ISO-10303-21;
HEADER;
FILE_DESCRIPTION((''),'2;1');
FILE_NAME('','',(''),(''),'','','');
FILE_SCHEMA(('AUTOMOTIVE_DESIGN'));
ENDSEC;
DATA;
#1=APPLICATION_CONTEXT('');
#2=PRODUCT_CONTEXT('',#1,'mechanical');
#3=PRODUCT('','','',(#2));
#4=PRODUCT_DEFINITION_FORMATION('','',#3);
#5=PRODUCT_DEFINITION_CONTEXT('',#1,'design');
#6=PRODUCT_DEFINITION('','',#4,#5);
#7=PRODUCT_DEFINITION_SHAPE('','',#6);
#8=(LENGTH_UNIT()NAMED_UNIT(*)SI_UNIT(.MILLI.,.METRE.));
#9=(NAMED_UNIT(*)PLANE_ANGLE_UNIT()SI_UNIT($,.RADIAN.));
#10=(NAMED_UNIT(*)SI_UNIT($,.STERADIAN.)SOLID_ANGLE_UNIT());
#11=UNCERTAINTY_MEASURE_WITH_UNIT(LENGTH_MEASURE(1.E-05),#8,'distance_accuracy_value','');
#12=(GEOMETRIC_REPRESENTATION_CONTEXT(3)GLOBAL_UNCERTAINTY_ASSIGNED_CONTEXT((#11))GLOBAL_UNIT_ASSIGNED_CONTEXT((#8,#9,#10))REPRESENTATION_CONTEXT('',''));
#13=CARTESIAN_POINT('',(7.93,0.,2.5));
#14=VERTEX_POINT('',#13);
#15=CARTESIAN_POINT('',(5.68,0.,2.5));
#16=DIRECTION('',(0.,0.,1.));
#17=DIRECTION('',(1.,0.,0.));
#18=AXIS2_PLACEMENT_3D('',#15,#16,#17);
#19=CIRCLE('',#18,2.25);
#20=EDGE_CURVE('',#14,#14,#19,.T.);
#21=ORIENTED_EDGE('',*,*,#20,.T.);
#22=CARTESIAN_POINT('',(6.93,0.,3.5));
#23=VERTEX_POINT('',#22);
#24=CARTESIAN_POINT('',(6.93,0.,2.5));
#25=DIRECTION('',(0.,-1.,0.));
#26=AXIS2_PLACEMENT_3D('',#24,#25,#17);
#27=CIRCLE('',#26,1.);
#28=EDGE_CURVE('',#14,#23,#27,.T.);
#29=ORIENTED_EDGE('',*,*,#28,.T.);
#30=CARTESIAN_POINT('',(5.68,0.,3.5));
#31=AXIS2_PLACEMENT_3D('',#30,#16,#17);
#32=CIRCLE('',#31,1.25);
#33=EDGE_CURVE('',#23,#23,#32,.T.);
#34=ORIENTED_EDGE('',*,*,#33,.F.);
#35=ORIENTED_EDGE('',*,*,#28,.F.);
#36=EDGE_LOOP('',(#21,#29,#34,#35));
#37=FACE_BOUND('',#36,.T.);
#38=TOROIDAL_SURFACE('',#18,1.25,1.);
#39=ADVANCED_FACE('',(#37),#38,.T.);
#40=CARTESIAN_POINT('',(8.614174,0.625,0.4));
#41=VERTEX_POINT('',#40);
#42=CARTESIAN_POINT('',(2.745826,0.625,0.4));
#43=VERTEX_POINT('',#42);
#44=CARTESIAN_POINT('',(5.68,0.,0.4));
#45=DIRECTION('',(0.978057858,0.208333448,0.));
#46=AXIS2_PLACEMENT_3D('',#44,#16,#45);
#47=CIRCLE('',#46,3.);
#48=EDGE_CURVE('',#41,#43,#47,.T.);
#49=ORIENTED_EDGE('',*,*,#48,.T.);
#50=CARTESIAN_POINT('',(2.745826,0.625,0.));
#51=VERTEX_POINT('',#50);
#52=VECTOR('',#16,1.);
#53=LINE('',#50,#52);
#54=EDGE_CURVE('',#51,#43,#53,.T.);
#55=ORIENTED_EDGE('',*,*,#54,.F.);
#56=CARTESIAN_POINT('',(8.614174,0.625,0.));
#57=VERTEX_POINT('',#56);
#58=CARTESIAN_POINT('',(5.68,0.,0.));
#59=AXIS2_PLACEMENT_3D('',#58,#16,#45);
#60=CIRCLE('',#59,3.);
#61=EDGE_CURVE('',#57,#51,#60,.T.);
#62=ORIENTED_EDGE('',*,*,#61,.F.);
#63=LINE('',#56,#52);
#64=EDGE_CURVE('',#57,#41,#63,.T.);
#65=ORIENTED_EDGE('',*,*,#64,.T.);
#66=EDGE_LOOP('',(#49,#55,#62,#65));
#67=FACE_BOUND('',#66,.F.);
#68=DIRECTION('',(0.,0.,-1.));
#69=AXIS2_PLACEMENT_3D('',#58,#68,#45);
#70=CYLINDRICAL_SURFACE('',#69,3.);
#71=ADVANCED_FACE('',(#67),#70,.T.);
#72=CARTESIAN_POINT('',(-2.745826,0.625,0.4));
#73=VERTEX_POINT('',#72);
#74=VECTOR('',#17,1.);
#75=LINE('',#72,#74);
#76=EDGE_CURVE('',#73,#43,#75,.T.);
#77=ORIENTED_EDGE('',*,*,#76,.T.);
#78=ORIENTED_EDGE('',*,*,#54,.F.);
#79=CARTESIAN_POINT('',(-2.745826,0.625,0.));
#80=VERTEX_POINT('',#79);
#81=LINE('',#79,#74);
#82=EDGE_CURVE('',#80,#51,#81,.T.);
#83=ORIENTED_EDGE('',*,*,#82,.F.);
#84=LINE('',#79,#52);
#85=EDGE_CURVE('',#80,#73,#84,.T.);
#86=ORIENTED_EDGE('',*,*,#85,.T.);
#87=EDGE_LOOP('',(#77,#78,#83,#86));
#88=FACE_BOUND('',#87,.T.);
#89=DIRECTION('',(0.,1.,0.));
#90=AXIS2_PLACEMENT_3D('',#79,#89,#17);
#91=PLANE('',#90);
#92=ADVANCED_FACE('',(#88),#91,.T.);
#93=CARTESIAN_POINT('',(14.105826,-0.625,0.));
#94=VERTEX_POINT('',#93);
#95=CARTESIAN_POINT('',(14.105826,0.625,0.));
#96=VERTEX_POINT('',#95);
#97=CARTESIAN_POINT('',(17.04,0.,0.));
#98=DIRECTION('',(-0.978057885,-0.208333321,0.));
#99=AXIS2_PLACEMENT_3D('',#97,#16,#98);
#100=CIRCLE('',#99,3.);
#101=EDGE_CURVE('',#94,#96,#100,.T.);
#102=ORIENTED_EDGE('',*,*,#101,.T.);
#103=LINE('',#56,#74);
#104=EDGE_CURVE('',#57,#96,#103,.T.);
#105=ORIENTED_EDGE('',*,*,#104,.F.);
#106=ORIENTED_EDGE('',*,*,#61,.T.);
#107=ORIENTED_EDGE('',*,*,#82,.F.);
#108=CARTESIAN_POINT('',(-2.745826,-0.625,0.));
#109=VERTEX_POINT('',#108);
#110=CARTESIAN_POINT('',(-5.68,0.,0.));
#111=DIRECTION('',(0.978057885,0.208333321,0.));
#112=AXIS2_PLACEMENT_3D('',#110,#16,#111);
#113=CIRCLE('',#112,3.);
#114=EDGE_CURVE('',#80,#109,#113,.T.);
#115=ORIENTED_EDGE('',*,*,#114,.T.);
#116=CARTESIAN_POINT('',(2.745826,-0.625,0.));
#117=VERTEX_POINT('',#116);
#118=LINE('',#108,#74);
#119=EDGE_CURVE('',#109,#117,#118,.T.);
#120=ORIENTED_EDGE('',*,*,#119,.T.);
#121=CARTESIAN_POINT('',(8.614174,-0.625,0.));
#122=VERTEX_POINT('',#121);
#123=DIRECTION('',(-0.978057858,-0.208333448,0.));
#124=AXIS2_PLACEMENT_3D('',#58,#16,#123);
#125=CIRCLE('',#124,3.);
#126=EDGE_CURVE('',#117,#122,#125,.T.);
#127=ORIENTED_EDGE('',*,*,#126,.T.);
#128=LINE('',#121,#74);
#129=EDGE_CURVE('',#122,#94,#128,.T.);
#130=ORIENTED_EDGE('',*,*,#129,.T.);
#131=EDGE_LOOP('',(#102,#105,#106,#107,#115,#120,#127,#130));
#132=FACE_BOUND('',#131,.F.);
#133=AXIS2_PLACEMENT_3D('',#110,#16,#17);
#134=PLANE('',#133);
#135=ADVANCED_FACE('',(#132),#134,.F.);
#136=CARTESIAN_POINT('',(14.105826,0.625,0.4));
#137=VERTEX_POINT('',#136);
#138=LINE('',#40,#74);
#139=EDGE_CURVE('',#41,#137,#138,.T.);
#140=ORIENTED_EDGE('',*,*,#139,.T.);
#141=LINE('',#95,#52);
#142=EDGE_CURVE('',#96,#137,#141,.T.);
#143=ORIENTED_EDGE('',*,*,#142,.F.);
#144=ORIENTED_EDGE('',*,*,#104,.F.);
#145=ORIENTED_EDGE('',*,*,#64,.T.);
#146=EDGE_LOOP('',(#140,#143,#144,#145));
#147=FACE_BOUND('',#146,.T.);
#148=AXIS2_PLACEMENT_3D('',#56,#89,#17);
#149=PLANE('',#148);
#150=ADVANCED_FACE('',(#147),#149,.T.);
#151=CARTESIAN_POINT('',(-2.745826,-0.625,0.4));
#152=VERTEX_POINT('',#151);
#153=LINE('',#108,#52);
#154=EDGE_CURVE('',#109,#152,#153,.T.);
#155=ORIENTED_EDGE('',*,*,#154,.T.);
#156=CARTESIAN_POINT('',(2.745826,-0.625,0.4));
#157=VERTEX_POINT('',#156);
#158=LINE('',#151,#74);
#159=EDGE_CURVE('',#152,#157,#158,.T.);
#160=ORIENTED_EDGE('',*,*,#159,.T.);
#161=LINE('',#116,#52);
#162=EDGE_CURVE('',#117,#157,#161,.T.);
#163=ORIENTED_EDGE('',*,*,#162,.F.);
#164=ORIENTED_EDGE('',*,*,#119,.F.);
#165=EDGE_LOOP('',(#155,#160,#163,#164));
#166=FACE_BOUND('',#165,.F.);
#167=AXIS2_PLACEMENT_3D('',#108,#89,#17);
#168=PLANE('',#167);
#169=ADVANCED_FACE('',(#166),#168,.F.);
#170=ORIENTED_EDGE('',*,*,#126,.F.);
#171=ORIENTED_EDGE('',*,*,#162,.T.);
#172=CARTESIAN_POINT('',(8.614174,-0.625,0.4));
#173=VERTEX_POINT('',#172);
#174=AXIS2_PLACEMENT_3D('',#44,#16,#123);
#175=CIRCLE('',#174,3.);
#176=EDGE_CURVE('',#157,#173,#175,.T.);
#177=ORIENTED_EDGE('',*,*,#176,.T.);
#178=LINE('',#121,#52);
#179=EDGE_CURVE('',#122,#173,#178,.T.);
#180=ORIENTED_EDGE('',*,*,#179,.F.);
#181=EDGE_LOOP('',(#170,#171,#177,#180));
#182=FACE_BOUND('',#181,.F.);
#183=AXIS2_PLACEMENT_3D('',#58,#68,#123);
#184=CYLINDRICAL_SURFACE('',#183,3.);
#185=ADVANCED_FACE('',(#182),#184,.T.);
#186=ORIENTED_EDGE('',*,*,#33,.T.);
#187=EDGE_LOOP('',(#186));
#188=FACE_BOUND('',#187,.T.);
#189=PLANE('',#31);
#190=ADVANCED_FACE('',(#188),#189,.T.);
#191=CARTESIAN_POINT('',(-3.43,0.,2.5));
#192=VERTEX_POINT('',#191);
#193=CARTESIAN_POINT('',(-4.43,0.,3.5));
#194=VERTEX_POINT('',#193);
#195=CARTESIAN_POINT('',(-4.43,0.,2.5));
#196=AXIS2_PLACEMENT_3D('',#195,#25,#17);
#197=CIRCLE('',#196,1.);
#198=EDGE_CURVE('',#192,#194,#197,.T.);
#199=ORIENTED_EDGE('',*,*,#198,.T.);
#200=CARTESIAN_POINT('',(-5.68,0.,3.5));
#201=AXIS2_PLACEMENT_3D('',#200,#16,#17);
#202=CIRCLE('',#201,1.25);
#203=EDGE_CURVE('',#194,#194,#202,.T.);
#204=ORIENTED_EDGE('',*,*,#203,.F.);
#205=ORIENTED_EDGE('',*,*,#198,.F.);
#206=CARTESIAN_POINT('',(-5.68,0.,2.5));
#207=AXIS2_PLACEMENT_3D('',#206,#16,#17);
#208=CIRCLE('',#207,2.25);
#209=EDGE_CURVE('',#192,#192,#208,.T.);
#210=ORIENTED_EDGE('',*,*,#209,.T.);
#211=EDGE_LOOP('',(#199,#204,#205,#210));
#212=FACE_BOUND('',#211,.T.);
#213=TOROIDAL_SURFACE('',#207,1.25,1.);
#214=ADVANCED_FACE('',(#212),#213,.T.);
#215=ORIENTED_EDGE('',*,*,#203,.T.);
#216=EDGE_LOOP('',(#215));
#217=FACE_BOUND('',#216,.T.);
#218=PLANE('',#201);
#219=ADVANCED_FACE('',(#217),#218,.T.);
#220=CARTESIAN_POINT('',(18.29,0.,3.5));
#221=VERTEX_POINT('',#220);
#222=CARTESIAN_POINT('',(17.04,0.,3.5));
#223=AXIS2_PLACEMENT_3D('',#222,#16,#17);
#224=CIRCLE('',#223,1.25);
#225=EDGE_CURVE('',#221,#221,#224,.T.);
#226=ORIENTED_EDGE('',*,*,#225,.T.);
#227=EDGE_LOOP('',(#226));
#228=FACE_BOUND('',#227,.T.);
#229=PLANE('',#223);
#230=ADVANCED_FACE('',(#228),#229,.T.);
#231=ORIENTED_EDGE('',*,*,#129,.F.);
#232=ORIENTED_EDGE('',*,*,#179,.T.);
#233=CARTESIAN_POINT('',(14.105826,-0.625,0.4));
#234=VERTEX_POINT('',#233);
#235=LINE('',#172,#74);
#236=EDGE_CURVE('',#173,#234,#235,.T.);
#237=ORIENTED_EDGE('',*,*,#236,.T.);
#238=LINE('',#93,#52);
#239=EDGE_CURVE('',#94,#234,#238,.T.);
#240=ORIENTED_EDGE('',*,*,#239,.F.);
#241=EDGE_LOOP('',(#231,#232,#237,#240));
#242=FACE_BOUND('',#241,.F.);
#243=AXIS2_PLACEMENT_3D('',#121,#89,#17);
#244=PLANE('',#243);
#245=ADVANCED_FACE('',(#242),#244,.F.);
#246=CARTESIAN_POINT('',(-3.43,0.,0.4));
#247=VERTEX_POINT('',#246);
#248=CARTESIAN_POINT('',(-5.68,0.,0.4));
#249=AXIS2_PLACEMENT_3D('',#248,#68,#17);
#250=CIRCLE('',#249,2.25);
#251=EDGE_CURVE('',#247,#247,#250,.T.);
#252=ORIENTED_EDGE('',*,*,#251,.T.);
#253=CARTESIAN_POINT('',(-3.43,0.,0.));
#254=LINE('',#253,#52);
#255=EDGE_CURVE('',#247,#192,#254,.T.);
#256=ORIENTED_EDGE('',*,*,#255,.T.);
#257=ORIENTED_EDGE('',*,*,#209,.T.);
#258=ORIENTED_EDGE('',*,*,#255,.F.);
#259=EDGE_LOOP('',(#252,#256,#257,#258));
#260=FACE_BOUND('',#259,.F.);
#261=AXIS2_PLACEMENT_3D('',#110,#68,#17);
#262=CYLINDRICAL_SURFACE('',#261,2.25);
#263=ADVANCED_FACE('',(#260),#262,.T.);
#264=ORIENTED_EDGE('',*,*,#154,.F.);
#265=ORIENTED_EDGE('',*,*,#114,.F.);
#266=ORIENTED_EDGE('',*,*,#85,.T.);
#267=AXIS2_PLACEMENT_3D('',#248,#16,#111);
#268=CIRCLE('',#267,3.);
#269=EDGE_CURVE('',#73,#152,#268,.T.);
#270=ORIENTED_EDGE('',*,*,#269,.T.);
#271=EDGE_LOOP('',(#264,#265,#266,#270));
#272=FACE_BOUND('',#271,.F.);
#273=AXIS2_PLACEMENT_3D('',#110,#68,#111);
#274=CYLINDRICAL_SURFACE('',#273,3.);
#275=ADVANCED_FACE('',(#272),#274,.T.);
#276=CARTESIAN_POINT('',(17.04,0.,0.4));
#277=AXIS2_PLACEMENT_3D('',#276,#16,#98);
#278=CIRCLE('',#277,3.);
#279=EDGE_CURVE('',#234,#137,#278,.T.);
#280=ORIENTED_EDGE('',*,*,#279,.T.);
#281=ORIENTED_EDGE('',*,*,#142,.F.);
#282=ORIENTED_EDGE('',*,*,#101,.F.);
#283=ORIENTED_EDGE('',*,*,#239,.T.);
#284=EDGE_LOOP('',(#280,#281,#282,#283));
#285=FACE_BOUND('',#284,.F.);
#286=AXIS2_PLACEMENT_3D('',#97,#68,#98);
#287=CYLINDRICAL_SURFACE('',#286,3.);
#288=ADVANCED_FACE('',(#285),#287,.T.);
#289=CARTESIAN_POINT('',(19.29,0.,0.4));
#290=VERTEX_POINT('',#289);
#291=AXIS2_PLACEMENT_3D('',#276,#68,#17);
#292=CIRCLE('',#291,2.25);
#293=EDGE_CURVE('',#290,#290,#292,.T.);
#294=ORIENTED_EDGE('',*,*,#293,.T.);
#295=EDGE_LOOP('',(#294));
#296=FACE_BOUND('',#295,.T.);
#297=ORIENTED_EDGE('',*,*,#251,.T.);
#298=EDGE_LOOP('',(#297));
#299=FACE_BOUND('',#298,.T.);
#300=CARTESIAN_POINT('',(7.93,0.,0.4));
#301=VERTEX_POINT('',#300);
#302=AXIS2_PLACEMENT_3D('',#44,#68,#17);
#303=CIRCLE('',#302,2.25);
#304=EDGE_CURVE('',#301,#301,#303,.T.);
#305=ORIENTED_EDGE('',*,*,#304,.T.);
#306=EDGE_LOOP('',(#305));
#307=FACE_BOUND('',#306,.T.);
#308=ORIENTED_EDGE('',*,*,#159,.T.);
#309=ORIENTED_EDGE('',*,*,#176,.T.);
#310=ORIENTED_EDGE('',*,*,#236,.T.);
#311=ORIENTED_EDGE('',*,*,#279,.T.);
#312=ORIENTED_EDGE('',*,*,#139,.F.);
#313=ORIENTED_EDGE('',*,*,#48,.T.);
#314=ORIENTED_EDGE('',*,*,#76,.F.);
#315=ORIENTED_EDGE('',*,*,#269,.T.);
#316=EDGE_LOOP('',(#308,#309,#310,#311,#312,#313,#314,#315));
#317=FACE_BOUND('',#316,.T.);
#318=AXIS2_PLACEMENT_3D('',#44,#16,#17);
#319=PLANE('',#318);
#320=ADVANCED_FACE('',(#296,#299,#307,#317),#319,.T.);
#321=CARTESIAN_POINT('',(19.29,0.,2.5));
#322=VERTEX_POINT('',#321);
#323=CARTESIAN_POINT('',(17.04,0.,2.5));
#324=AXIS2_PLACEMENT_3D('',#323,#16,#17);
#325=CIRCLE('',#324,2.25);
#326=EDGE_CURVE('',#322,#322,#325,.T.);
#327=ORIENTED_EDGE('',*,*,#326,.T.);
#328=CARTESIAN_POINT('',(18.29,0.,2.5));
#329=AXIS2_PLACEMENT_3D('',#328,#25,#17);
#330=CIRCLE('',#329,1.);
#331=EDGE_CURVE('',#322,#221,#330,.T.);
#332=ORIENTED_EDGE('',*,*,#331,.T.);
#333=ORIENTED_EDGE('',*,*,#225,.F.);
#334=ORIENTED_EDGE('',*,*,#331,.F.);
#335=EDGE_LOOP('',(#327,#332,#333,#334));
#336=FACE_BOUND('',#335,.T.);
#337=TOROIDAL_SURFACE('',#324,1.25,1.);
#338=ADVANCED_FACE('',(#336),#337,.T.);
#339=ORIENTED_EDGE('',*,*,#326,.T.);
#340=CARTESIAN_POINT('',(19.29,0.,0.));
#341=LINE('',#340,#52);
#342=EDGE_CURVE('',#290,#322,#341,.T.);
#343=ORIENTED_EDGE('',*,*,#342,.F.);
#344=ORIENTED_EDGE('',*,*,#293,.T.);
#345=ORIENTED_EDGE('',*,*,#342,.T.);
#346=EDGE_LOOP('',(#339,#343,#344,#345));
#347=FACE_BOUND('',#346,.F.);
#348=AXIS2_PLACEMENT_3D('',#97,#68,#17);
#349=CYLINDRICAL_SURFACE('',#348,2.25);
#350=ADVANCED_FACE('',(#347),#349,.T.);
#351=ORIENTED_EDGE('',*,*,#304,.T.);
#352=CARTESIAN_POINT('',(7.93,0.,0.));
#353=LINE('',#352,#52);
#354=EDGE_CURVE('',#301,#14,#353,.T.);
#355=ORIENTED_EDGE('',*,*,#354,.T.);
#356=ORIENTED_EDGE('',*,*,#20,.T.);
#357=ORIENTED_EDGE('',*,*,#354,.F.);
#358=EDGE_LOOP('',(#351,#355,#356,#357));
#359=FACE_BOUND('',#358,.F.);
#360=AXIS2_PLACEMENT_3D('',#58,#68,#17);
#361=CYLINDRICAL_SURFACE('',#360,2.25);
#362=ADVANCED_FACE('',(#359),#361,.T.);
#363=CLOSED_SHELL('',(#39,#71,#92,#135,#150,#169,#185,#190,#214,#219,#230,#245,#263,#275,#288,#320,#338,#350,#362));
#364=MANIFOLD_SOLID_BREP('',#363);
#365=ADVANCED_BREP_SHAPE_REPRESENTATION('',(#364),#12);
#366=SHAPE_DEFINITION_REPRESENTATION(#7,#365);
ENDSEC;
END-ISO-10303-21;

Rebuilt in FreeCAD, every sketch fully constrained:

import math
import FreeCAD as App
import Part
import Sketcher
from FreeCAD import Vector


def edges_at(feature, points):
    """Names of the edges that pass closest to the given points."""
    edges = feature.Shape.Edges
    near = lambda p: min(range(len(edges)), key=lambda i: edges[i].distToShape(Part.Vertex(*p))[0])
    return sorted({f"Edge{near(p) + 1}" for p in points})

doc = App.newDocument("Part")
body = doc.addObject("PartDesign::Body", "Body")

# Sketch on XY plane
sketch1 = doc.addObject("Sketcher::SketchObject", "Sketch")
body.addObject(sketch1)
sketch1.AttachmentSupport = (doc.XY_Plane, [""])
sketch1.MapMode = "FlatFace"
sketch1.addGeometry([
    Part.ArcOfCircle(Part.Circle(Vector(-5.68, 0, 0), Vector(0, 0, 1), 3), math.radians(12.024698), math.radians(347.975302)),  # 0
    Part.LineSegment(Vector(-2.745826, -0.625, 0), Vector(2.745826, -0.625, 0)),  # 1
    Part.ArcOfCircle(Part.Circle(Vector(5.68, 0, 0), Vector(0, 0, 1), 3), math.radians(-167.975294), math.radians(-12.024706)),  # 2
    Part.LineSegment(Vector(8.614174, -0.625, 0), Vector(14.105826, -0.625, 0)),  # 3
    Part.ArcOfCircle(Part.Circle(Vector(17.04, 0, 0), Vector(0, 0, 1), 3), math.radians(-167.975302), math.radians(167.975302)),  # 4
    Part.LineSegment(Vector(14.105826, 0.625, 0), Vector(8.614174, 0.625, 0)),  # 5
    Part.ArcOfCircle(Part.Circle(Vector(5.68, 0, 0), Vector(0, 0, 1), 3), math.radians(12.024706), math.radians(167.975294)),  # 6
    Part.LineSegment(Vector(2.745826, 0.625, 0), Vector(-2.745826, 0.625, 0)),  # 7
], False)
sketch1.addConstraint([
    Sketcher.Constraint("Coincident", 0, 2, 1, 1),
    Sketcher.Constraint("Coincident", 1, 2, 2, 1),
    Sketcher.Constraint("Coincident", 2, 2, 3, 1),
    Sketcher.Constraint("Coincident", 3, 2, 4, 1),
    Sketcher.Constraint("Coincident", 4, 2, 5, 1),
    Sketcher.Constraint("Coincident", 5, 2, 6, 1),
    Sketcher.Constraint("Coincident", 6, 2, 7, 1),
    Sketcher.Constraint("Coincident", 7, 2, 0, 1),
    Sketcher.Constraint("Horizontal", 1),
    Sketcher.Constraint("Horizontal", 3),
    Sketcher.Constraint("Horizontal", 5),
    Sketcher.Constraint("Horizontal", 7),
    Sketcher.Constraint("Coincident", 6, 3, 2, 3),
    Sketcher.Constraint("Equal", 0, 2),
    Sketcher.Constraint("Equal", 2, 4),
    Sketcher.Constraint("Equal", 4, 6),
    Sketcher.Constraint("Symmetric", 0, 3, 2, 3, -1, 1),
    Sketcher.Constraint("Symmetric", 3, 2, 4, 2, -1),
    Sketcher.Constraint("Symmetric", 1, 2, 6, 2, -1),
    Sketcher.Constraint("Horizontal", 1, 2, 2, 2),
    Sketcher.Constraint("Equal", 1, 3),
    Sketcher.Constraint("Radius", 0, 3.0),
    Sketcher.Constraint("DistanceX", 0, 3, -1, 1, 5.68),
    Sketcher.Constraint("DistanceY", 3, 2, 4, 2, 1.25),
])
pad1 = doc.addObject("PartDesign::Pad", "Pad")
body.addObject(pad1)
pad1.Profile = sketch1
pad1.Length = 0.4

# Sketch on XY plane
sketch2 = doc.addObject("Sketcher::SketchObject", "Sketch001")
body.addObject(sketch2)
sketch2.AttachmentSupport = (doc.XY_Plane, [""])
sketch2.MapMode = "FlatFace"
sketch2.addGeometry([
    Part.Circle(Vector(-5.68, 0, 0), Vector(0, 0, 1), 2.25),
    Part.Circle(Vector(5.68, 0, 0), Vector(0, 0, 1), 2.25),
    Part.Circle(Vector(17.04, 0, 0), Vector(0, 0, 1), 2.25),
], False)
sketch2.addConstraint([
    Sketcher.Constraint("Equal", 0, 1),
    Sketcher.Constraint("Equal", 1, 2),
    Sketcher.Constraint("Symmetric", 0, 3, 1, 3, -1, 1),
    Sketcher.Constraint("PointOnObject", 0, 3, -1),
    Sketcher.Constraint("PointOnObject", 2, 3, -1),
    Sketcher.Constraint("Diameter", 0, 4.5),
    Sketcher.Constraint("DistanceX", 0, 3, -1, 1, 5.68),
    Sketcher.Constraint("DistanceX", -1, 1, 2, 3, 17.04),
])
pad2 = doc.addObject("PartDesign::Pad", "Pad001")
body.addObject(pad2)
pad2.Profile = sketch2
pad2.Length = 3.5
doc.recompute()

fillet = doc.addObject("PartDesign::Fillet", "Fillet")
body.addObject(fillet)
fillet.Base = (pad2, edges_at(pad2, [(-7.93, 0, 3.5), (3.43, 0, 3.5), (14.79, 0, 3.5)]))
fillet.Radius = 1

doc.recompute()
